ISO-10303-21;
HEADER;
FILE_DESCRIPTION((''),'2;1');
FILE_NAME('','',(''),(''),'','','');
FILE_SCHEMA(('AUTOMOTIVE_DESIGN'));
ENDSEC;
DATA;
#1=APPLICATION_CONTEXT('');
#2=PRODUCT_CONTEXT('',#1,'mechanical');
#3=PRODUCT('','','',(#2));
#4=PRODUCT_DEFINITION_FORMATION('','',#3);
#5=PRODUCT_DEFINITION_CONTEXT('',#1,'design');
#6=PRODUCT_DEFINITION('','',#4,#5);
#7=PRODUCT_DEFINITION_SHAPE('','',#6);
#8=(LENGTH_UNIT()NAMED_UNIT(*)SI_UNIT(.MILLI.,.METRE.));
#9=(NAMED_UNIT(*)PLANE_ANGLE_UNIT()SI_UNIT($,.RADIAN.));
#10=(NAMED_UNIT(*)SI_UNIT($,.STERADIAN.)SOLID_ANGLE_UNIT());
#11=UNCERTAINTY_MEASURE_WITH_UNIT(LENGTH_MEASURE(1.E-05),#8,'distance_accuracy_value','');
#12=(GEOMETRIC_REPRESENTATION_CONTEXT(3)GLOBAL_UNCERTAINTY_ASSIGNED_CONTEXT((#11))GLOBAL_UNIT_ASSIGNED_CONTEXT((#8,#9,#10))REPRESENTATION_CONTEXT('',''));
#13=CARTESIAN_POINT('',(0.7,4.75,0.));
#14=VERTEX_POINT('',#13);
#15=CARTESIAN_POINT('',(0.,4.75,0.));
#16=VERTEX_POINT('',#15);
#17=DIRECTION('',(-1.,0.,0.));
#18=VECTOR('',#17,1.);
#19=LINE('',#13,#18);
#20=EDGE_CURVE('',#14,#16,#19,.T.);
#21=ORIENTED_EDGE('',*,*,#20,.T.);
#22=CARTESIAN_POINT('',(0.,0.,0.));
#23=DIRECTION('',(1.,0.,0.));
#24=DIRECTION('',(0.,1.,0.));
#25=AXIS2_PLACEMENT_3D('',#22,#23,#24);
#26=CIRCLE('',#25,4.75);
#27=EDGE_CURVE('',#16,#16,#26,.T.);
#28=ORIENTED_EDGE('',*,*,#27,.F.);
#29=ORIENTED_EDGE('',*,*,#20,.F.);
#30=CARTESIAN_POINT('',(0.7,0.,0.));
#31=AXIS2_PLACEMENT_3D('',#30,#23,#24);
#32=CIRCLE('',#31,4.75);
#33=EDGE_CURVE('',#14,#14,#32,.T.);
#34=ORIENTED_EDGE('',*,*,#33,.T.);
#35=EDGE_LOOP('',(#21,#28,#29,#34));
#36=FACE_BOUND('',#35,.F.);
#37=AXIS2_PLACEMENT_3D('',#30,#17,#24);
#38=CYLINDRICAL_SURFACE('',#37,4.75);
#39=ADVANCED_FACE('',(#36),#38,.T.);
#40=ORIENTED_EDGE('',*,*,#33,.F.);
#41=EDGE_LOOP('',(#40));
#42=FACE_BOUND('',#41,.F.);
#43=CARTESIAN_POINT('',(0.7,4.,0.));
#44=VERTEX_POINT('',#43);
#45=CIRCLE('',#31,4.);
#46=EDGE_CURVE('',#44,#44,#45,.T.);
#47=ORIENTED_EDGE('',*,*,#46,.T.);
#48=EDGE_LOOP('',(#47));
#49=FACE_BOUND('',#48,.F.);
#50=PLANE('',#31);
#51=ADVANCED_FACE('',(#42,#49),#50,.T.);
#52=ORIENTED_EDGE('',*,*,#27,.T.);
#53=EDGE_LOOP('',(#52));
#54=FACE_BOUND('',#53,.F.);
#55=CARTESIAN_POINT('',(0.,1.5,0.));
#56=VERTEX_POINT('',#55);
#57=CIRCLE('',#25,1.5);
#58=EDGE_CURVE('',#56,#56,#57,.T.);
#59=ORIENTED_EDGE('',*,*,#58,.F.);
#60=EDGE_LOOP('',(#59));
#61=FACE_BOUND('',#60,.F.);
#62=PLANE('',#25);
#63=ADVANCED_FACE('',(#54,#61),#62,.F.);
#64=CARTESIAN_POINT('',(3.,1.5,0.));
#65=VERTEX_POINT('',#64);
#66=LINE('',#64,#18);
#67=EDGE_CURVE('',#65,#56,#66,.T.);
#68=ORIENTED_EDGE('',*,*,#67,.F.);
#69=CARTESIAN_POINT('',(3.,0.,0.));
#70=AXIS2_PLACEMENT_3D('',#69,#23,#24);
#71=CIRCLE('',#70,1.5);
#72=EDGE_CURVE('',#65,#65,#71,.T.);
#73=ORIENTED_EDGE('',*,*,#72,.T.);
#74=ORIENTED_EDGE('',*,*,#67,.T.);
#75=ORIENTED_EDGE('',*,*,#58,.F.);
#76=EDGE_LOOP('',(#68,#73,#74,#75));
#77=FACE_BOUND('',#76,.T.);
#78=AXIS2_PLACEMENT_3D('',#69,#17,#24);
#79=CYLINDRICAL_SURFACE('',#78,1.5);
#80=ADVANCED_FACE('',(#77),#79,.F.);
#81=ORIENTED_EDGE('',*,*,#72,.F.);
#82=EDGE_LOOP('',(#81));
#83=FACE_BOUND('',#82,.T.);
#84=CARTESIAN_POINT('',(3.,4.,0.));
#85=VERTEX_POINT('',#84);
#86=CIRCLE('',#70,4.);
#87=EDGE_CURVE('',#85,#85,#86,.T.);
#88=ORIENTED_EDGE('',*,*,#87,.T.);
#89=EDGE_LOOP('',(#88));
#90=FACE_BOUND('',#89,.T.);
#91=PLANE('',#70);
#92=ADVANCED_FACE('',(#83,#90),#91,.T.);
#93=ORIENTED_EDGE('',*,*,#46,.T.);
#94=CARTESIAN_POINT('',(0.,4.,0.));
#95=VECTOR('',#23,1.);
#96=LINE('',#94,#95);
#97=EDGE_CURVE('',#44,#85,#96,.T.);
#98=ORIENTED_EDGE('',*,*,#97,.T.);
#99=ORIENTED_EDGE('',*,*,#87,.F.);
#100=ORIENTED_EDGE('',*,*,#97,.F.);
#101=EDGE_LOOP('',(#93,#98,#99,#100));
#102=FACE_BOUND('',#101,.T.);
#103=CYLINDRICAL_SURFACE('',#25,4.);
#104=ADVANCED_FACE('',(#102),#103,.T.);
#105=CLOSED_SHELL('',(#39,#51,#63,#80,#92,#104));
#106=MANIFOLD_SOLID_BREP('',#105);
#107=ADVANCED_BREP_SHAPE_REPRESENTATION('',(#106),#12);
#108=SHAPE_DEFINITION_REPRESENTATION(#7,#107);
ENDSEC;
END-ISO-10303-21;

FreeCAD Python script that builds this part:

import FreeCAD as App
import Part
import Sketcher

V = App.Vector
Q = App.Units.Quantity


def add_polygon(sketch, points):
    """Adds a closed chain of lines whose ends are joined by coincident constraints."""
    first, n = sketch.GeometryCount, len(points)
    for a, b in zip(points, points[1:] + points[:1]):
        sketch.addGeometry(Part.LineSegment(App.Vector(*a, 0), App.Vector(*b, 0)), False)
    for i in range(n):
        sketch.addConstraint(Sketcher.Constraint("Coincident", first + i, 2, first + (i + 1) % n, 1))

doc = App.newDocument("Part")
params = doc.addObject("Spreadsheet::Sheet", "Params")
for row, (alias, value) in enumerate([
    ("sketch1_width", "3 mm"),
    ("sketch1_width2", "0.7 mm"),
    ("revolution_angle", "360 deg"),
], start=1):
    params.set(f"A{row}", alias)
    params.set(f"B{row}", "=" + value)
    params.setAlias(f"B{row}", alias)

body = doc.addObject("PartDesign::Body", "Body")

# Sketch on XY plane
sketch1 = doc.addObject("Sketcher::SketchObject", "Sketch")
body.addObject(sketch1)
sketch1.AttachmentSupport = (doc.XY_Plane, [""])
sketch1.MapMode = "FlatFace"
add_polygon(sketch1, [(0, 4.8), (0, 1.5), (3, 1.5), (3, 4), (0.7, 4), (0.7, 4.8)])  # lines 0-5
sketch1.addConstraint([
    Sketcher.Constraint("Vertical", 0),
    Sketcher.Constraint("Horizontal", 1),
    Sketcher.Constraint("Vertical", 2),
    Sketcher.Constraint("Horizontal", 3),
    Sketcher.Constraint("Vertical", 4),
    Sketcher.Constraint("Horizontal", 5),
    Sketcher.Constraint("PointOnObject", 0, 2, -2),
    Sketcher.Constraint("DistanceX", 1, 1, 1, 2, Q("3 mm")),
    Sketcher.Constraint("DistanceX", 5, 2, 5, 1, Q("0.7 mm")),
    Sketcher.Constraint("DistanceY", -1, 1, 2, 2, Q("4 mm")),
    Sketcher.Constraint("DistanceY", -1, 1, 0, 2, Q("1.5 mm")),
    Sketcher.Constraint("DistanceY", -1, 1, 4, 2, Q("4.75 mm")),
])
sketch1.setExpression("Constraints[13]", "Params.sketch1_width")
sketch1.setExpression("Constraints[14]", "Params.sketch1_width2")
revolution = doc.addObject("PartDesign::Revolution", "Revolution")
body.addObject(revolution)
revolution.Profile = sketch1
revolution.ReferenceAxis = (sketch1, ["H_Axis"])
revolution.setExpression("Angle", "Params.revolution_angle")

doc.recompute()
